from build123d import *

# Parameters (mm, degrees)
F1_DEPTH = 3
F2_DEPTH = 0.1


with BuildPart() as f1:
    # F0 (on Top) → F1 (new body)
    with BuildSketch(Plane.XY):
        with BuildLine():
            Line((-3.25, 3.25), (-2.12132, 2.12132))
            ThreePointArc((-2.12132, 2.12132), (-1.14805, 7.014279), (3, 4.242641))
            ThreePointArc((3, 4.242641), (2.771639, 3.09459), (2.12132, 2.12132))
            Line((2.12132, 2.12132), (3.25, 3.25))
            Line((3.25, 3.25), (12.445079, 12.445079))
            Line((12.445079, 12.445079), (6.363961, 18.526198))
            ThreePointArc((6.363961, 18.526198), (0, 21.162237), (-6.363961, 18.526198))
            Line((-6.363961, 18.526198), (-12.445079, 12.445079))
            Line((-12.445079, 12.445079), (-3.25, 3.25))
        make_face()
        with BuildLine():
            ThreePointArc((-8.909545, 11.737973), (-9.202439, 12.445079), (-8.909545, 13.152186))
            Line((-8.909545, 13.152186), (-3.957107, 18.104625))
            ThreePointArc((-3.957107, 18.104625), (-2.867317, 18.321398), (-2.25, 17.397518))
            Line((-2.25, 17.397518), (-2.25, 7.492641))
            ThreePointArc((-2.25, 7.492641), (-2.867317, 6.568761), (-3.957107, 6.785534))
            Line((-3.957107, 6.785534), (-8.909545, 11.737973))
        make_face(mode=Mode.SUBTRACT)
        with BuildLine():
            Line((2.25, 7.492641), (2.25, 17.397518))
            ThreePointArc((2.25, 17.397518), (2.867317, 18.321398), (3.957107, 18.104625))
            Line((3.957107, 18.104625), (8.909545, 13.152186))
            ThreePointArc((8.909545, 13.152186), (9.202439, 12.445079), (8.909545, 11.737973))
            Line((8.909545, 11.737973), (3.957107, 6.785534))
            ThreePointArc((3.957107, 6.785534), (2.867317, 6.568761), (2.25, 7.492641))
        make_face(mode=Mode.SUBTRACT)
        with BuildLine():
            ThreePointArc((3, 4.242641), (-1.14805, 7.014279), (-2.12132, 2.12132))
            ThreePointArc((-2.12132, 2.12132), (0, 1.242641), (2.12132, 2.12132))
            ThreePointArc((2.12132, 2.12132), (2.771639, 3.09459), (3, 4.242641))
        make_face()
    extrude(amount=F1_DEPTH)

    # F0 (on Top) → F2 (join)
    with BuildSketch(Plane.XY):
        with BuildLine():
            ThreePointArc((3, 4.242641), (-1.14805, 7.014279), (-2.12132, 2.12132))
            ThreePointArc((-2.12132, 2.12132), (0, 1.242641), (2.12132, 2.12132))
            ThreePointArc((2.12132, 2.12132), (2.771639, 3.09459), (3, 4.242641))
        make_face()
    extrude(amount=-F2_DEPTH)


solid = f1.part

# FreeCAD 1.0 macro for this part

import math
import FreeCAD as App
import Part
import Sketcher
from FreeCAD import Vector

doc = App.newDocument("Part")
body = doc.addObject("PartDesign::Body", "Body")

# Sketch on XY plane
sketch1 = doc.addObject("Sketcher::SketchObject", "Sketch")
body.addObject(sketch1)
sketch1.AttachmentSupport = (doc.XY_Plane, [""])
sketch1.MapMode = "FlatFace"
sketch1.addGeometry(Part.LineSegment(Vector(-12.445079, 12.445079, 0), Vector(-2.12132, 2.12132, 0)), False)
sketch1.addGeometry(Part.ArcOfCircle(Part.Circle(Vector(0, 4.242642, 0), Vector(0, 0, 1), 3.000001), math.radians(-134.999976), math.radians(-45.000024)), False)
sketch1.addGeometry(Part.LineSegment(Vector(2.12132, 2.12132, 0), Vector(12.445079, 12.445079, 0)), False)
sketch1.addGeometry(Part.LineSegment(Vector(12.445079, 12.445079, 0), Vector(6.363961, 18.526198, 0)), False)
sketch1.addGeometry(Part.ArcOfCircle(Part.Circle(Vector(0, 12.162237, 0), Vector(0, 0, 1), 9), math.radians(44.999999), math.radians(135.000001)), False)
sketch1.addGeometry(Part.LineSegment(Vector(-6.363961, 18.526198, 0), Vector(-12.445079, 12.445079, 0)), False)
sketch1.addGeometry(Part.ArcOfCircle(Part.Circle(Vector(3.25, 7.492641, 0), Vector(0, 0, 1), 1), math.radians(179.999987), math.radians(315.000006)), False)
sketch1.addGeometry(Part.LineSegment(Vector(2.25, 7.492641, 0), Vector(2.25, 17.397518, 0)), False)
sketch1.addGeometry(Part.ArcOfCircle(Part.Circle(Vector(3.25, 17.397518, 0), Vector(0, 0, 1), 1), math.radians(44.999994), math.radians(180.000013)), False)
sketch1.addGeometry(Part.LineSegment(Vector(3.957107, 18.104625, 0), Vector(8.909545, 13.152186, 0)), False)
sketch1.addGeometry(Part.ArcOfCircle(Part.Circle(Vector(8.202442, 12.44508, 0), Vector(0, 0, 1), 0.999997), math.radians(-45.000124), math.radians(45.000124)), False)
sketch1.addGeometry(Part.LineSegment(Vector(8.909545, 11.737973, 0), Vector(3.957107, 6.785534, 0)), False)
sketch1.addGeometry(Part.LineSegment(Vector(-3.957107, 6.785534, 0), Vector(-8.909545, 11.737973, 0)), False)
sketch1.addGeometry(Part.ArcOfCircle(Part.Circle(Vector(-8.202442, 12.44508, 0), Vector(0, 0, 1), 0.999997), math.radians(134.999876), math.radians(225.000124)), False)
sketch1.addGeometry(Part.LineSegment(Vector(-8.909545, 13.152186, 0), Vector(-3.957107, 18.104625, 0)), False)
sketch1.addGeometry(Part.ArcOfCircle(Part.Circle(Vector(-3.25, 17.397518, 0), Vector(0, 0, 1), 1), math.radians(-0.000013), math.radians(135.000006)), False)
sketch1.addGeometry(Part.LineSegment(Vector(-2.25, 17.397518, 0), Vector(-2.25, 7.492641, 0)), False)
sketch1.addGeometry(Part.ArcOfCircle(Part.Circle(Vector(-3.25, 7.492641, 0), Vector(0, 0, 1), 1), math.radians(-135.000006), math.radians(0.000013)), False)
sketch1.addConstraint(Sketcher.Constraint("Tangent", 0, 2, 1, 1))
sketch1.addConstraint(Sketcher.Constraint("Tangent", 1, 2, 2, 1))
sketch1.addConstraint(Sketcher.Constraint("Coincident", 2, 2, 3, 1))
sketch1.addConstraint(Sketcher.Constraint("Tangent", 3, 2, 4, 1))
sketch1.addConstraint(Sketcher.Constraint("Tangent", 4, 2, 5, 1))
sketch1.addConstraint(Sketcher.Constraint("Coincident", 5, 2, 0, 1))
sketch1.addConstraint(Sketcher.Constraint("Tangent", 6, 1, 7, 1))
sketch1.addConstraint(Sketcher.Constraint("Tangent", 7, 2, 8, 2))
sketch1.addConstraint(Sketcher.Constraint("Tangent", 8, 1, 9, 1))
sketch1.addConstraint(Sketcher.Constraint("Coincident", 9, 2, 10, 2))
sketch1.addConstraint(Sketcher.Constraint("Coincident", 10, 1, 11, 1))
sketch1.addConstraint(Sketcher.Constraint("Tangent", 11, 2, 6, 2))
sketch1.addConstraint(Sketcher.Constraint("Coincident", 12, 2, 13, 2))
sketch1.addConstraint(Sketcher.Constraint("Coincident", 13, 1, 14, 1))
sketch1.addConstraint(Sketcher.Constraint("Tangent", 14, 2, 15, 2))
sketch1.addConstraint(Sketcher.Constraint("Tangent", 15, 1, 16, 1))
sketch1.addConstraint(Sketcher.Constraint("Tangent", 16, 2, 17, 2))
sketch1.addConstraint(Sketcher.Constraint("Tangent", 17, 1, 12, 1))
sketch1.addConstraint(Sketcher.Constraint("Vertical", 7))
sketch1.addConstraint(Sketcher.Constraint("Vertical", 16))
sketch1.addConstraint(Sketcher.Constraint("Equal", 6, 8))
sketch1.addConstraint(Sketcher.Constraint("Equal", 10, 13))
sketch1.addConstraint(Sketcher.Constraint("Equal", 8, 15))
sketch1.addConstraint(Sketcher.Constraint("Equal", 15, 17))
sketch1.addConstraint(Sketcher.Constraint("Symmetric", 10, 3, 13, 3, -2))
sketch1.addConstraint(Sketcher.Constraint("Symmetric", 8, 3, 15, 3, -2))
sketch1.addConstraint(Sketcher.Constraint("Symmetric", 0, 2, 1, 2, -2))
sketch1.addConstraint(Sketcher.Constraint("Symmetric", 3, 2, 4, 2, -2))
sketch1.addConstraint(Sketcher.Constraint("Perpendicular", 0, 2))
sketch1.addConstraint(Sketcher.Constraint("Perpendicular", 2, 3))
sketch1.addConstraint(Sketcher.Constraint("Perpendicular", 5, 9))
sketch1.addConstraint(Sketcher.Constraint("Perpendicular", 9, 11))
sketch1.addConstraint(Sketcher.Constraint("Perpendicular", 11, 12))
sketch1.addConstraint(Sketcher.Constraint("Horizontal", 13, 3, 2, 2))
sketch1.addConstraint(Sketcher.Constraint("Horizontal", 10, 1, 12, 2))
sketch1.addConstraint(Sketcher.Constraint("Horizontal", 9, 2, 13, 1))
sketch1.addConstraint(Sketcher.Constraint("Vertical", 9, 2, 10, 1))
sketch1.addConstraint(Sketcher.Constraint("Radius", 1, 3.000001))
sketch1.addConstraint(Sketcher.Constraint("Radius", 4, 9.0))
sketch1.addConstraint(Sketcher.Constraint("Radius", 6, 1.0))
sketch1.addConstraint(Sketcher.Constraint("Distance", 0, 14.6))
sketch1.addConstraint(Sketcher.Constraint("DistanceX", 15, 3, 8, 3, 6.5))
sketch1.addConstraint(Sketcher.Constraint("DistanceY", 1, 3, 6, 3, 3.249999))
sketch1.addConstraint(Sketcher.Constraint("Radius", 10, 0.999997))
sketch1.addConstraint(Sketcher.Constraint("DistanceY", -1, 1, 3, 2, 18.526198))
sketch1.addConstraint(Sketcher.Constraint("DistanceX", 8, 1, 9, 2, 4.952438))
pad1 = doc.addObject("PartDesign::Pad", "Pad")
body.addObject(pad1)
pad1.Profile = sketch1
pad1.Length = 3

# Sketch on XY plane
sketch2 = doc.addObject("Sketcher::SketchObject", "Sketch001")
body.addObject(sketch2)
sketch2.AttachmentSupport = (doc.XY_Plane, [""])
sketch2.MapMode = "FlatFace"
sketch2.addGeometry(Part.ArcOfCircle(Part.Circle(Vector(0, 4.24264, 0), Vector(0, 0, 1), 3), math.radians(0.000011), math.radians(225.000004)), False)
sketch2.addGeometry(Part.ArcOfCircle(Part.Circle(Vector(0, 4.242642, 0), Vector(0, 0, 1), 3.000001), math.radians(-134.999976), math.radians(-45.000024)), False)
sketch2.addGeometry(Part.ArcOfCircle(Part.Circle(Vector(0.000006, 4.242638, 0), Vector(0, 0, 1), 2.999994), math.radians(-45.000059), math.radians(0.000056)), False)
sketch2.addConstraint(Sketcher.Constraint("Tangent", 0, 2, 1, 1))
sketch2.addConstraint(Sketcher.Constraint("Tangent", 1, 2, 2, 1))
sketch2.addConstraint(Sketcher.Constraint("Tangent", 2, 2, 0, 1))
sketch2.addConstraint(Sketcher.Constraint("Symmetric", 0, 2, 1, 2, -2))
sketch2.addConstraint(Sketcher.Constraint("Horizontal", 1, 3, 2, 2))
sketch2.addConstraint(Sketcher.Constraint("Radius", 0, 3.0))
sketch2.addConstraint(Sketcher.Constraint("DistanceY", -1, 1, 0, 3, 4.24264))
sketch2.addConstraint(Sketcher.Constraint("DistanceX", 0, 2, -1, 1, 2.12132))
pad2 = doc.addObject("PartDesign::Pad", "Pad001")
body.addObject(pad2)
pad2.Profile = sketch2
pad2.Length = 0.1
pad2.Reversed = True

doc.recompute()
